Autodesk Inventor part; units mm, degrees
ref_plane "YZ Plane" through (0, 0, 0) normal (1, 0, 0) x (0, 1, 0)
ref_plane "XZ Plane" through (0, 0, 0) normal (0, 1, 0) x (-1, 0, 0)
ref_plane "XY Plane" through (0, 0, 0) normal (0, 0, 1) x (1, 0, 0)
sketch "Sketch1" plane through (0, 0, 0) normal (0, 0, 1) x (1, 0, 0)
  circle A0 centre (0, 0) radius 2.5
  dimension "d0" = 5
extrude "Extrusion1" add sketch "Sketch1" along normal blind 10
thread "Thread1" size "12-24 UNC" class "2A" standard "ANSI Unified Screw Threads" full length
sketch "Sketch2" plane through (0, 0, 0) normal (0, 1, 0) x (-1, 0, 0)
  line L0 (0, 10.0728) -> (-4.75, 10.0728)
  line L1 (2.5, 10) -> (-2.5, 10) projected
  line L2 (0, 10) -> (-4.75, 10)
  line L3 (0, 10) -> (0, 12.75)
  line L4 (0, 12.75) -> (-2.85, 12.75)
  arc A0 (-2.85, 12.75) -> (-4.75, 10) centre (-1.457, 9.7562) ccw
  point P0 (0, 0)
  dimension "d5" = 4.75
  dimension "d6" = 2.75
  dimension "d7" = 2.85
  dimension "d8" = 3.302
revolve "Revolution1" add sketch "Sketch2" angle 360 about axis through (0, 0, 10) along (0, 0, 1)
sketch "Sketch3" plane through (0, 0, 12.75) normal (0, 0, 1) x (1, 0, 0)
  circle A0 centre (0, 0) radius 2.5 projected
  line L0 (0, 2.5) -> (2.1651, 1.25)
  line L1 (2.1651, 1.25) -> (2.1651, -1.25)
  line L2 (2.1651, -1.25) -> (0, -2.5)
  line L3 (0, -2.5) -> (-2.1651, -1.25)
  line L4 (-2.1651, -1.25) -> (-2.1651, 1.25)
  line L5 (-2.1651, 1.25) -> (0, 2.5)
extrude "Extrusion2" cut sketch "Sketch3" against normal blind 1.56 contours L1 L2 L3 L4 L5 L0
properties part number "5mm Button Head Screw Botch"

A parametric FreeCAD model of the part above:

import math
import FreeCAD as App
import Part
import Sketcher

V = App.Vector
Q = App.Units.Quantity

doc = App.newDocument("Part")
body = doc.addObject("PartDesign::Body", "Body")

sketch1 = body.newObject("Sketcher::SketchObject", "Sketch")
sketch1.AttachmentSupport = (doc.getObject("XY_Plane"), [""])
sketch1.MapMode = "FlatFace"
sketch1.addGeometry(Part.Circle(V(0, 0, 0), V(0, 0, 1), 2.5), False)
sketch1.addConstraint(Sketcher.Constraint("Coincident", 0, 3, -1, 1))
sketch1.addConstraint(Sketcher.Constraint("Diameter", 0, Q("5 mm")))
pad1 = body.newObject("PartDesign::Pad", "Pad")
pad1.Profile = sketch1
pad1.Length = 10

sketch2 = body.newObject("Sketcher::SketchObject", "Sketch001")
sketch2.AttachmentSupport = (doc.getObject("XZ_Plane"), [""])
sketch2.MapMode = "FlatFace"
sketch2.addGeometry(Part.LineSegment(V(0, 10, 0), V(0, 12.8, 0)), False)
sketch2.addGeometry(Part.LineSegment(V(0, 12.8, 0), V(2.9, 12.8, 0)), False)
sketch2.addGeometry(Part.ArcOfCircle(Part.Circle(V(1.5, 9.8, 0), V(0, 0, 1), 3.3), math.radians(4), math.radians(65)), False)
sketch2.addGeometry(Part.LineSegment(V(4.8, 10, 0), V(0, 10, 0)), False)
sketch2.addConstraint(Sketcher.Constraint("Coincident", 0, 2, 1, 1))
sketch2.addConstraint(Sketcher.Constraint("Coincident", 1, 2, 2, 2))
sketch2.addConstraint(Sketcher.Constraint("Coincident", 2, 1, 3, 1))
sketch2.addConstraint(Sketcher.Constraint("Coincident", 3, 2, 0, 1))
sketch2.addConstraint(Sketcher.Constraint("Vertical", 0))
sketch2.addConstraint(Sketcher.Constraint("Horizontal", 1))
sketch2.addConstraint(Sketcher.Constraint("Horizontal", 3))
sketch2.addConstraint(Sketcher.Constraint("PointOnObject", 0, 2, -2))
sketch2.addConstraint(Sketcher.Constraint("Radius", 2, Q("3.302 mm")))
sketch2.addConstraint(Sketcher.Constraint("DistanceX", 1, 1, 1, 2, Q("2.85 mm")))
sketch2.addConstraint(Sketcher.Constraint("DistanceX", 3, 2, 3, 1, Q("4.75 mm")))
sketch2.addConstraint(Sketcher.Constraint("DistanceY", 0, 1, 0, 2, Q("2.75 mm")))
sketch2.addConstraint(Sketcher.Constraint("DistanceY", -1, 1, 2, 1, Q("10 mm")))
revolution = body.newObject("PartDesign::Revolution", "Revolution")
revolution.Profile = sketch2
revolution.ReferenceAxis = (sketch2, ["V_Axis"])
revolution.Angle = 360

sketch3 = body.newObject("Sketcher::SketchObject", "Sketch002")
sketch3.AttachmentSupport = (doc.getObject("XY_Plane"), [""])
sketch3.MapMode = "FlatFace"
sketch3.AttachmentOffset = App.Placement(V(0, 0, 12.75), App.Rotation())
sketch3.addGeometry(Part.LineSegment(V(2.2, -1.2, 0), V(2.2, 1.2, 0)), False)
sketch3.addGeometry(Part.LineSegment(V(2.2, 1.2, 0), V(0, 2.5, 0)), False)
sketch3.addGeometry(Part.LineSegment(V(0, 2.5, 0), V(-2.2, 1.2, 0)), False)
sketch3.addGeometry(Part.LineSegment(V(-2.2, 1.2, 0), V(-2.2, -1.2, 0)), False)
sketch3.addGeometry(Part.LineSegment(V(-2.2, -1.2, 0), V(0, -2.5, 0)), False)
sketch3.addGeometry(Part.LineSegment(V(0, -2.5, 0), V(2.2, -1.2, 0)), False)
sketch3.addConstraint(Sketcher.Constraint("Coincident", 0, 2, 1, 1))
sketch3.addConstraint(Sketcher.Constraint("Coincident", 1, 2, 2, 1))
sketch3.addConstraint(Sketcher.Constraint("Coincident", 2, 2, 3, 1))
sketch3.addConstraint(Sketcher.Constraint("Coincident", 3, 2, 4, 1))
sketch3.addConstraint(Sketcher.Constraint("Coincident", 4, 2, 5, 1))
sketch3.addConstraint(Sketcher.Constraint("Coincident", 5, 2, 0, 1))
sketch3.addConstraint(Sketcher.Constraint("Vertical", 0))
sketch3.addConstraint(Sketcher.Constraint("Vertical", 3))
sketch3.addConstraint(Sketcher.Constraint("Symmetric", 0, 2, 3, 2, -1, 1))
sketch3.addConstraint(Sketcher.Constraint("Symmetric", 1, 2, 4, 2, -1, 1))
sketch3.addConstraint(Sketcher.Constraint("PointOnObject", 1, 2, -2))
sketch3.addConstraint(Sketcher.Constraint("Parallel", 2, 5))
sketch3.addConstraint(Sketcher.Constraint("Horizontal", 0, 2, 2, 2))
sketch3.addConstraint(Sketcher.Constraint("Angle", 1, Q("150.0004 deg")))
sketch3.addConstraint(Sketcher.Constraint("DistanceY", 0, 1, 0, 2, Q("2.5 mm")))
sketch3.addConstraint(Sketcher.Constraint("DistanceY", 4, 2, 1, 2, Q("5 mm")))
pocket1 = body.newObject("PartDesign::Pocket", "Pocket")
pocket1.Profile = sketch3
pocket1.Length = 1.56

doc.recompute()
